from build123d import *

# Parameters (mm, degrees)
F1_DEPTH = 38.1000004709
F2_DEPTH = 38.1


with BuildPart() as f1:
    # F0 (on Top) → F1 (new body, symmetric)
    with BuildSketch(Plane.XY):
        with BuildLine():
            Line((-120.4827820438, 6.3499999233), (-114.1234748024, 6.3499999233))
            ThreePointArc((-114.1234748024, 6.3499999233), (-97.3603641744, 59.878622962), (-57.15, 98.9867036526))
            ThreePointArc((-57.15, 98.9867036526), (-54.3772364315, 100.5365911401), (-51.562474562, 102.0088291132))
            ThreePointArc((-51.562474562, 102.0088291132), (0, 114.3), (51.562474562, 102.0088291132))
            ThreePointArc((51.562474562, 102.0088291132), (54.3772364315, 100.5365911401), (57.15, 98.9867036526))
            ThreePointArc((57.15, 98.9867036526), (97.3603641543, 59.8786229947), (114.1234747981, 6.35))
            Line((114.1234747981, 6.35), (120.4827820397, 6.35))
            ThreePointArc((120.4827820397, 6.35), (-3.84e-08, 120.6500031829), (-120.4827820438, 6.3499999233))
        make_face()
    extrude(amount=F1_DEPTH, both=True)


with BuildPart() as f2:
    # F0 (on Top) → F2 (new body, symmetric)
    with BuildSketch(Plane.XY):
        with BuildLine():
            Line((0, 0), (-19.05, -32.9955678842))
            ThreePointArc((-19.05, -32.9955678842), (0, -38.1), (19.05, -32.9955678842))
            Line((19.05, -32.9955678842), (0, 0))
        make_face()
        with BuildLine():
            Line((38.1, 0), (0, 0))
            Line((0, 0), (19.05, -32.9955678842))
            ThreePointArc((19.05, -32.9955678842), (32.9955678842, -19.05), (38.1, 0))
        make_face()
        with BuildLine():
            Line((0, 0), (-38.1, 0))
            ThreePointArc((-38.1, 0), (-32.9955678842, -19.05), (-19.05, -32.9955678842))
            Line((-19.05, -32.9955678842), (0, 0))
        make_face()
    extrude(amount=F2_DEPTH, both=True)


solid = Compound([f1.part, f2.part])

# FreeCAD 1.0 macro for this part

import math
import FreeCAD as App
import Part
import Sketcher
Q = App.Units.Quantity

doc = App.newDocument("Part")
body = doc.addObject("PartDesign::Body", "Body")

# Sketch on XY plane
sketch1 = body.newObject("Sketcher::SketchObject", "Sketch")
sketch1.AttachmentSupport = (doc.getObject("XY_Plane"), [""])
sketch1.MapMode = "FlatFace"
sketch1.addGeometry(Part.LineSegment(App.Vector(-120, 6, 0), App.Vector(-114, 6, 0)), False)
sketch1.addGeometry(Part.ArcOfCircle(Part.Circle(App.Vector(0, 0, 0), App.Vector(0, 0, 1), 114), math.radians(120), math.radians(177)), False)
sketch1.addGeometry(Part.ArcOfCircle(Part.Circle(App.Vector(0, 0, 0), App.Vector(0, 0, 1), 114), math.radians(116.82), math.radians(120)), False)
sketch1.addGeometry(Part.ArcOfCircle(Part.Circle(App.Vector(0, 0, 0), App.Vector(0, 0, 1), 114), math.radians(63), math.radians(117)), False)
sketch1.addGeometry(Part.ArcOfCircle(Part.Circle(App.Vector(0, 0, 0), App.Vector(0, 0, 1), 114), math.radians(60), math.radians(63.18)), False)
sketch1.addGeometry(Part.ArcOfCircle(Part.Circle(App.Vector(0, 0, 0), App.Vector(0, 0, 1), 114), math.radians(3), math.radians(60)), False)
sketch1.addGeometry(Part.LineSegment(App.Vector(114, 6, 0), App.Vector(120, 6, 0)), False)
sketch1.addGeometry(Part.ArcOfCircle(Part.Circle(App.Vector(0, 0, 0), App.Vector(0, 0, 1), 121), math.radians(3), math.radians(177)), False)
sketch1.addConstraint(Sketcher.Constraint("Coincident", 0, 2, 1, 2))
sketch1.addConstraint(Sketcher.Constraint("Tangent", 1, 1, 2, 2))
sketch1.addConstraint(Sketcher.Constraint("Tangent", 2, 1, 3, 2))
sketch1.addConstraint(Sketcher.Constraint("Tangent", 3, 1, 4, 2))
sketch1.addConstraint(Sketcher.Constraint("Tangent", 4, 1, 5, 2))
sketch1.addConstraint(Sketcher.Constraint("Coincident", 5, 1, 6, 1))
sketch1.addConstraint(Sketcher.Constraint("Coincident", 6, 2, 7, 1))
sketch1.addConstraint(Sketcher.Constraint("Coincident", 7, 2, 0, 1))
sketch1.addConstraint(Sketcher.Constraint("Horizontal", 0))
sketch1.addConstraint(Sketcher.Constraint("Horizontal", 6))
sketch1.addConstraint(Sketcher.Constraint("Coincident", 1, 3, -1, 1))
sketch1.addConstraint(Sketcher.Constraint("Coincident", 3, 3, -1, 1))
sketch1.addConstraint(Sketcher.Constraint("Coincident", 5, 3, -1, 1))
sketch1.addConstraint(Sketcher.Constraint("Coincident", 7, 3, -1, 1))
sketch1.addConstraint(Sketcher.Constraint("Horizontal", 2, 1, 3, 1))
sketch1.addConstraint(Sketcher.Constraint("Horizontal", 1, 1, 4, 1))
sketch1.addConstraint(Sketcher.Constraint("Horizontal", 0, 2, 5, 1))
sketch1.addConstraint(Sketcher.Constraint("Radius", 1, Q("4.5 in")))
sketch1.addConstraint(Sketcher.Constraint("Radius", 7, Q("4.7500001 in")))
sketch1.addConstraint(Sketcher.Constraint("DistanceX", 1, 1, 4, 1, Q("4.5 in")))
sketch1.addConstraint(Sketcher.Constraint("DistanceY", -1, 1, 0, 2, Q("0.25 in")))
sketch1.addConstraint(Sketcher.Constraint("DistanceY", -1, 1, 2, 1, 102.008829))
pad1 = body.newObject("PartDesign::Pad", "Pad")
pad1.Profile = sketch1
pad1.Length = Q("3 in")
pad1.Midplane = True
body2 = doc.addObject("PartDesign::Body", "Body001")

# Sketch on XY plane
sketch2 = body2.newObject("Sketcher::SketchObject", "Sketch001")
sketch2.AttachmentSupport = (doc.getObject("XY_Plane001"), [""])
sketch2.MapMode = "FlatFace"
sketch2.addGeometry(Part.LineSegment(App.Vector(38, 0, 0), App.Vector(-38, 0, 0)), False)
sketch2.addGeometry(Part.ArcOfCircle(Part.Circle(App.Vector(0, 0, 0), App.Vector(0, 0, 1), 38), math.radians(180), math.radians(360)), False)
sketch2.addConstraint(Sketcher.Constraint("Coincident", 0, 1, 1, 2))
sketch2.addConstraint(Sketcher.Constraint("Coincident", 1, 1, 0, 2))
sketch2.addConstraint(Sketcher.Constraint("Horizontal", 0))
sketch2.addConstraint(Sketcher.Constraint("Coincident", 1, 3, -1, 1))
sketch2.addConstraint(Sketcher.Constraint("PointOnObject", 0, 1, -1))
sketch2.addConstraint(Sketcher.Constraint("Radius", 1, Q("1.5 in")))
pad2 = body2.newObject("PartDesign::Pad", "Pad001")
pad2.Profile = sketch2
pad2.Length = Q("3 in")
pad2.Midplane = True

doc.recompute()
